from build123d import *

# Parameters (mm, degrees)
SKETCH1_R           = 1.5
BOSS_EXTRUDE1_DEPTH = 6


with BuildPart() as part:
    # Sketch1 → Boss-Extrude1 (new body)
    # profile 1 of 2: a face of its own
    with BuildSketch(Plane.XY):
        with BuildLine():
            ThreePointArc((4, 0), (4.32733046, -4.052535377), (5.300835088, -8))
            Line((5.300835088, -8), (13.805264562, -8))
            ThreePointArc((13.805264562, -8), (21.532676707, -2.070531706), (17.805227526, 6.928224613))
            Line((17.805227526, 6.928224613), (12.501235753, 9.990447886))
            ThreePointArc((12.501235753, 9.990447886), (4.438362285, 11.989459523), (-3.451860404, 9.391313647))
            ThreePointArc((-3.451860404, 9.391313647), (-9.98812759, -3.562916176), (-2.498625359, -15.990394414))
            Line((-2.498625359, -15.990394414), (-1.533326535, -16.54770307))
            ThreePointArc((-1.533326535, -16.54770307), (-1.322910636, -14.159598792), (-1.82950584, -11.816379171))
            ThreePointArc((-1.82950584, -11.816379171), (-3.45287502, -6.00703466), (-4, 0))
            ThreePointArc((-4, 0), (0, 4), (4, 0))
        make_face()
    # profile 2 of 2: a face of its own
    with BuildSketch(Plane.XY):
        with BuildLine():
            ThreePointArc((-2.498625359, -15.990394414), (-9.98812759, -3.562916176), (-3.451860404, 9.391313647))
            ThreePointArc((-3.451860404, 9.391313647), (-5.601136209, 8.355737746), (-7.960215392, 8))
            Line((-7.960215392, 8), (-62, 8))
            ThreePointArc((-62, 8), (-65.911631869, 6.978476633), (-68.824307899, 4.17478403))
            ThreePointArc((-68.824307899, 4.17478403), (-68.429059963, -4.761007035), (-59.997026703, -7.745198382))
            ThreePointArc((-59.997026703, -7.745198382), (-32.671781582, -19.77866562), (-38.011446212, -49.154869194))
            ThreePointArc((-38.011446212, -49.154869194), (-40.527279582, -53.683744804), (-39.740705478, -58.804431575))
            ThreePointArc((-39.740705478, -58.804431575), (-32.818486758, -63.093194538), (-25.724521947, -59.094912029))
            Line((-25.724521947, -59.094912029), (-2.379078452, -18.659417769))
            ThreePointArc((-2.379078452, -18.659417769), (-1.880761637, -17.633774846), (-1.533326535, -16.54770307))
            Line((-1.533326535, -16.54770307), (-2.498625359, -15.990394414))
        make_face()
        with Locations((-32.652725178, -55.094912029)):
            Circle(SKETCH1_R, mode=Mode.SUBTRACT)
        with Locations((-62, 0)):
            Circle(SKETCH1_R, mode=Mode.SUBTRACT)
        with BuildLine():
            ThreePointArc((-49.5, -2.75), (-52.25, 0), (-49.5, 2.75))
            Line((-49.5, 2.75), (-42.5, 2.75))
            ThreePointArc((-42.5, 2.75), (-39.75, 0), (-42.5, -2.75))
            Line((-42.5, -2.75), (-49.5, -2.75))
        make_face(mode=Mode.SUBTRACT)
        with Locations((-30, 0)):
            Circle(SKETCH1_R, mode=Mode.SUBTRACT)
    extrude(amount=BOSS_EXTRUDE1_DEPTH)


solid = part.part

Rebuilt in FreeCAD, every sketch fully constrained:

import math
import FreeCAD as App
import Part
import Sketcher
from FreeCAD import Vector
Q = App.Units.Quantity

doc = App.newDocument("Part")
body = doc.addObject("PartDesign::Body", "Body")

# Sketch on XY plane
sketch1 = body.newObject("Sketcher::SketchObject", "Sketch")
sketch1.AttachmentSupport = (doc.getObject("XY_Plane"), [""])
sketch1.MapMode = "FlatFace"
sketch1.addGeometry(Part.ArcOfCircle(Part.Circle(Vector(29.25, 0, 0), Vector(0, 0, 1), 25.25), math.radians(-180), math.radians(-161.528574)), False)
sketch1.addGeometry(Part.LineSegment(Vector(5.300835, -8, 0), Vector(13.805265, -8, 0)), False)
sketch1.addGeometry(Part.ArcOfCircle(Part.Circle(Vector(13.805265, 0, 0), Vector(0, 0, 1), 8), math.radians(-90), math.radians(60.000306)), False)
sketch1.addGeometry(Part.LineSegment(Vector(17.805228, 6.928225, 0), Vector(12.501236, 9.990448, 0)), False)
sketch1.addGeometry(Part.ArcOfCircle(Part.Circle(Vector(5.001305, -2.999973, 0), Vector(0, 0, 1), 15), math.radians(60.000306), math.radians(124.301271)), False)
sketch1.addGeometry(Part.ArcOfCircle(Part.Circle(Vector(-7.960215, 16, 0), Vector(0, 0, 1), 8), math.radians(-90), math.radians(-55.698729)), False)
sketch1.addGeometry(Part.LineSegment(Vector(-7.960215, 8, 0), Vector(-62, 8, 0)), False)
sketch1.addGeometry(Part.ArcOfCircle(Part.Circle(Vector(-62, 0, 0), Vector(0, 0, 1), 8), math.radians(90), math.radians(148.543706)), False)
sketch1.addGeometry(Part.ArcOfCircle(Part.Circle(Vector(-62, 0, 0), Vector(0, 0, 1), 8), math.radians(148.543706), math.radians(284.499506)), False)
sketch1.addGeometry(Part.ArcOfCircle(Part.Circle(Vector(-53.961885, -31.082191, 0), Vector(0, 0, 1), 24.104733), math.radians(-48.56928), math.radians(104.499506)), False)
sketch1.addGeometry(Part.ArcOfCircle(Part.Circle(Vector(-32.652725, -55.094912, 0), Vector(0, 0, 1), 8), math.radians(132.054727), math.radians(207.62547)), False)
sketch1.addGeometry(Part.ArcOfCircle(Part.Circle(Vector(-32.652725, -55.094912, 0), Vector(0, 0, 1), 8), math.radians(-152.37453), math.radians(-30)), False)
sketch1.addGeometry(Part.LineSegment(Vector(-25.724522, -59.094912, 0), Vector(-2.379078, -18.659418, 0)), False)
sketch1.addGeometry(Part.ArcOfCircle(Part.Circle(Vector(-9.307282, -14.659418, 0), Vector(0, 0, 1), 8), math.radians(-30), math.radians(-13.652679)), False)
sketch1.addGeometry(Part.ArcOfCircle(Part.Circle(Vector(-9.307282, -14.659418, 0), Vector(0, 0, 1), 8), math.radians(-13.652679), math.radians(20.816725)), False)
sketch1.addGeometry(Part.ArcOfCircle(Part.Circle(Vector(29.25, 0, 0), Vector(0, 0, 1), 33.25), math.radians(-180), math.radians(-159.183275)), False)
sketch1.addGeometry(Part.ArcOfCircle(Part.Circle(Vector(0, 0, 0), Vector(0, 0, 1), 4), math.radians(0), math.radians(180)), False)
sketch1.addGeometry(Part.Circle(Vector(-30, 0, 0), Vector(0, 0, 1), 1.5), False)
sketch1.addGeometry(Part.LineSegment(Vector(-49.5, 2.75, 0), Vector(-42.5, 2.75, 0)), False)
sketch1.addGeometry(Part.ArcOfCircle(Part.Circle(Vector(-42.5, 0, 0), Vector(0, 0, 1), 2.75), math.radians(-90), math.radians(90)), False)
sketch1.addGeometry(Part.LineSegment(Vector(-42.5, -2.75, 0), Vector(-49.5, -2.75, 0)), False)
sketch1.addGeometry(Part.ArcOfCircle(Part.Circle(Vector(-49.5, 0, 0), Vector(0, 0, 1), 2.75), math.radians(90), math.radians(270)), False)
sketch1.addGeometry(Part.Circle(Vector(-32.652725, -55.094912, 0), Vector(0, 0, 1), 1.5), False)
sketch1.addGeometry(Part.Circle(Vector(-62, 0, 0), Vector(0, 0, 1), 1.5), False)
sketch1.addConstraint(Sketcher.Constraint("Coincident", 0, 2, 1, 1))
sketch1.addConstraint(Sketcher.Constraint("Tangent", 1, 2, 2, 1))
sketch1.addConstraint(Sketcher.Constraint("Tangent", 2, 2, 3, 1))
sketch1.addConstraint(Sketcher.Constraint("Tangent", 3, 2, 4, 1))
sketch1.addConstraint(Sketcher.Constraint("Tangent", 4, 2, 5, 2))
sketch1.addConstraint(Sketcher.Constraint("Tangent", 5, 1, 6, 1))
sketch1.addConstraint(Sketcher.Constraint("Tangent", 6, 2, 7, 1))
sketch1.addConstraint(Sketcher.Constraint("Tangent", 7, 2, 8, 1))
sketch1.addConstraint(Sketcher.Constraint("Tangent", 8, 2, 9, 2))
sketch1.addConstraint(Sketcher.Constraint("Coincident", 9, 1, 10, 1))
sketch1.addConstraint(Sketcher.Constraint("Tangent", 10, 2, 11, 1))
sketch1.addConstraint(Sketcher.Constraint("Tangent", 11, 2, 12, 1))
sketch1.addConstraint(Sketcher.Constraint("Tangent", 12, 2, 13, 1))
sketch1.addConstraint(Sketcher.Constraint("Tangent", 13, 2, 14, 1))
sketch1.addConstraint(Sketcher.Constraint("Tangent", 14, 2, 15, 2))
sketch1.addConstraint(Sketcher.Constraint("Tangent", 15, 1, 16, 2))
sketch1.addConstraint(Sketcher.Constraint("Tangent", 16, 1, 0, 1))
sketch1.addConstraint(Sketcher.Constraint("Tangent", 18, 2, 19, 2))
sketch1.addConstraint(Sketcher.Constraint("Tangent", 19, 1, 20, 1))
sketch1.addConstraint(Sketcher.Constraint("Tangent", 20, 2, 21, 2))
sketch1.addConstraint(Sketcher.Constraint("Tangent", 21, 1, 18, 1))
sketch1.addConstraint(Sketcher.Constraint("Horizontal", 1))
sketch1.addConstraint(Sketcher.Constraint("Horizontal", 6))
sketch1.addConstraint(Sketcher.Constraint("Horizontal", 18))
sketch1.addConstraint(Sketcher.Constraint("Horizontal", 20))
sketch1.addConstraint(Sketcher.Constraint("Coincident", 16, 3, -1, 1))
sketch1.addConstraint(Sketcher.Constraint("Coincident", 15, 3, 0, 3))
sketch1.addConstraint(Sketcher.Constraint("Coincident", 22, 3, 10, 3))
sketch1.addConstraint(Sketcher.Constraint("Coincident", 23, 3, 7, 3))
sketch1.addConstraint(Sketcher.Constraint("Equal", 2, 5))
sketch1.addConstraint(Sketcher.Constraint("Equal", 5, 7))
sketch1.addConstraint(Sketcher.Constraint("Equal", 7, 8))
sketch1.addConstraint(Sketcher.Constraint("Equal", 8, 10))
sketch1.addConstraint(Sketcher.Constraint("Equal", 10, 11))
sketch1.addConstraint(Sketcher.Constraint("Equal", 11, 13))
sketch1.addConstraint(Sketcher.Constraint("Equal", 13, 14))
sketch1.addConstraint(Sketcher.Constraint("Equal", 17, 22))
sketch1.addConstraint(Sketcher.Constraint("Equal", 22, 23))
sketch1.addConstraint(Sketcher.Constraint("PointOnObject", 0, 3, -1))
sketch1.addConstraint(Sketcher.Constraint("PointOnObject", 2, 3, -1))
sketch1.addConstraint(Sketcher.Constraint("PointOnObject", 7, 3, -1))
sketch1.addConstraint(Sketcher.Constraint("PointOnObject", 17, 3, -1))
sketch1.addConstraint(Sketcher.Constraint("PointOnObject", 19, 3, -1))
sketch1.addConstraint(Sketcher.Constraint("Diameter", 17, 3.0))
sketch1.addConstraint(Sketcher.Constraint("Radius", 2, 8.0))
sketch1.addConstraint(Sketcher.Constraint("Radius", 4, 15.0))
sketch1.addConstraint(Sketcher.Constraint("Radius", 16, 4.0))
sketch1.addConstraint(Sketcher.Constraint("DistanceX", 18, 1, 18, 2, 7.0))
sketch1.addConstraint(Sketcher.Constraint("Angle", 12, Q("60 deg")))
sketch1.addConstraint(Sketcher.Constraint("Radius", 0, 25.25))
sketch1.addConstraint(Sketcher.Constraint("Radius", 19, 2.75))
sketch1.addConstraint(Sketcher.Constraint("DistanceX", 7, 3, -1, 1, 62.0))
sketch1.addConstraint(Sketcher.Constraint("DistanceX", 17, 3, -1, 1, 30.0))
sketch1.addConstraint(Sketcher.Constraint("DistanceX", 19, 3, -1, 1, 42.5))
sketch1.addConstraint(Sketcher.Constraint("Radius", 9, 24.104733))
sketch1.addConstraint(Sketcher.Constraint("DistanceX", 1, 1, 1, 2, 8.504429))
sketch1.addConstraint(Sketcher.Constraint("DistanceY", 8, 2, -1, 1, 7.745198))
sketch1.addConstraint(Sketcher.Constraint("DistanceX", 6, 2, 6, 1, 54.039785))
sketch1.addConstraint(Sketcher.Constraint("DistanceX", 13, 3, -1, 1, 9.307282))
sketch1.addConstraint(Sketcher.Constraint("DistanceX", 4, 2, -1, 1, 3.45186))
sketch1.addConstraint(Sketcher.Constraint("DistanceY", 9, 1, -1, 1, 49.154869))
sketch1.addConstraint(Sketcher.Constraint("DistanceY", 10, 2, -1, 1, 58.804432))
sketch1.addConstraint(Sketcher.Constraint("DistanceX", 7, 2, 8, 2, 8.827281))
sketch1.addConstraint(Sketcher.Constraint("DistanceX", 12, 2, 13, 2, 0.845752))
pad1 = body.newObject("PartDesign::Pad", "Pad")
pad1.Profile = sketch1
pad1.Length = 6

doc.recompute()
